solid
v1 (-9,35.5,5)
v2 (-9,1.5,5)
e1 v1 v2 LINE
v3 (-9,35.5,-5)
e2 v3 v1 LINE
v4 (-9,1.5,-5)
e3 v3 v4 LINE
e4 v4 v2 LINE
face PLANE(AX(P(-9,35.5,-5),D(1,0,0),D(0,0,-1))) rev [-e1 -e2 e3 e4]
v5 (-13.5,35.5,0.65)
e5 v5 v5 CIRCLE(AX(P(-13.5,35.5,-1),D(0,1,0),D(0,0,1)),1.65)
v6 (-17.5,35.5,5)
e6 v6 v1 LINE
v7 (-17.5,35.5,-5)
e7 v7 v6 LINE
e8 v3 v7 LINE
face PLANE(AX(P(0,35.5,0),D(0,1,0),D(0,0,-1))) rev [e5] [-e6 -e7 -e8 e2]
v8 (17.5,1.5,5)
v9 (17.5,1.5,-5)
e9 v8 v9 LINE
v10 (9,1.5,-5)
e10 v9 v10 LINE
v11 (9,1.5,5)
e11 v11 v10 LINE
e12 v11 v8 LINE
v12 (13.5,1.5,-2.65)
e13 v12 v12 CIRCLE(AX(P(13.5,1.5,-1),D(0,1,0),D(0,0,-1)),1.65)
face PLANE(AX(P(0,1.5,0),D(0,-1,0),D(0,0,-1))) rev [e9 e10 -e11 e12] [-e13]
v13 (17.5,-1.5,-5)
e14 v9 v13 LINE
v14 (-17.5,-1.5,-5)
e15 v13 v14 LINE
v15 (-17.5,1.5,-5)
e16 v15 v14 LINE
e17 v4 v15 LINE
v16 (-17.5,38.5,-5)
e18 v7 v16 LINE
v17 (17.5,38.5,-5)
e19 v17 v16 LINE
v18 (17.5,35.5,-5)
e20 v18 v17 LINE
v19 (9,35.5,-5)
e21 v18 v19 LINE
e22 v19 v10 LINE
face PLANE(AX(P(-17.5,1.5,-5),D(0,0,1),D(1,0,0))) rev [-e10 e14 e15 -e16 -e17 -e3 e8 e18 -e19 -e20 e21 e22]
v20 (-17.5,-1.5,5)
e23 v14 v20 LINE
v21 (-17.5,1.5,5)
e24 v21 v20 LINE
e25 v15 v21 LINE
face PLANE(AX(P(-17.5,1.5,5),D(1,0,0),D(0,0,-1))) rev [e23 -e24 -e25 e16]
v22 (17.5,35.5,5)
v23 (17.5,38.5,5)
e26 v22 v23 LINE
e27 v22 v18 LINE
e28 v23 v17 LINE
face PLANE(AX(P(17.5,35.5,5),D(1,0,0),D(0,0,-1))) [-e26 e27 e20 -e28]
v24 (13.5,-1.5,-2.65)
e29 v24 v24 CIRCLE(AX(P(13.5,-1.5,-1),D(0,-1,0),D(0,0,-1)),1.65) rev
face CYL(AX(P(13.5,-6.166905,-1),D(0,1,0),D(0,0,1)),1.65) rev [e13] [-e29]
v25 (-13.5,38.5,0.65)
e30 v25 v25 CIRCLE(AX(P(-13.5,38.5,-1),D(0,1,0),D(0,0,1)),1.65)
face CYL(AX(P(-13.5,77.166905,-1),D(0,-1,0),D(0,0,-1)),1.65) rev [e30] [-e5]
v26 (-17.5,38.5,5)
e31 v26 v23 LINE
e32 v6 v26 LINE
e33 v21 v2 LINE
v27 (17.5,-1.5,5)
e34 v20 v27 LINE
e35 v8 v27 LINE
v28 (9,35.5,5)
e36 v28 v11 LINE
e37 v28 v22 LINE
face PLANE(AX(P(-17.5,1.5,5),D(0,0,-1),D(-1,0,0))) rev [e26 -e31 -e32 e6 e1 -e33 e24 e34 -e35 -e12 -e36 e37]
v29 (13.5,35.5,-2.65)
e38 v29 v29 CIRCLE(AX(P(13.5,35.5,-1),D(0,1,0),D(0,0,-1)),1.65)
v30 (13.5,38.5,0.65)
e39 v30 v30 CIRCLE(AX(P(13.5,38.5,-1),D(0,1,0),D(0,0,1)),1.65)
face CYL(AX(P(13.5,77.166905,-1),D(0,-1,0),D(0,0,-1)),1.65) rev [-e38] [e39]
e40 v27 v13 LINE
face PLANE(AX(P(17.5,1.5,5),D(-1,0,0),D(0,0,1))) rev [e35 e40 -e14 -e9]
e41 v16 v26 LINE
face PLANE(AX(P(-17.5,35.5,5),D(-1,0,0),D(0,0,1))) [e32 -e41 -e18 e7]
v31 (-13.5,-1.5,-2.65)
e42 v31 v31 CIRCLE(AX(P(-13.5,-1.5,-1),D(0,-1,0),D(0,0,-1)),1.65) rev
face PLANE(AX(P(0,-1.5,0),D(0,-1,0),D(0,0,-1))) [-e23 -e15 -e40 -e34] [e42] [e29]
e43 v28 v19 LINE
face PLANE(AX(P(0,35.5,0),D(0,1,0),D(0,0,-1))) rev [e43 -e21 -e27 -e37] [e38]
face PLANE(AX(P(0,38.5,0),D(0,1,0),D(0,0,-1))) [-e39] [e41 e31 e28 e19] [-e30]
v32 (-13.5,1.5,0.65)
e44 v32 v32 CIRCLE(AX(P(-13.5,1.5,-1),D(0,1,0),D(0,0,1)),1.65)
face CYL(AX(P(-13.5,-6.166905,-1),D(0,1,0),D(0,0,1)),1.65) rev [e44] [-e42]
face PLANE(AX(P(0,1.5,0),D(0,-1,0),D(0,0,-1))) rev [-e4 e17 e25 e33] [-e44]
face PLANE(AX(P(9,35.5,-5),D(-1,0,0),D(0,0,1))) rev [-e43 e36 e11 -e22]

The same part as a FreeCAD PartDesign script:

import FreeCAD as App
import Part
import Sketcher
Q = App.Units.Quantity

doc = App.newDocument("Part")
body = doc.addObject("PartDesign::Body", "Body")

# Sketch on XZ plane
sketch1 = doc.addObject("Sketcher::SketchObject", "Sketch")
body.addObject(sketch1)
sketch1.AttachmentSupport = (doc.XZ_Plane, [""])
sketch1.MapMode = "FlatFace"
sketch1.addGeometry([
    Part.LineSegment(App.Vector(-18, -5, 0), App.Vector(-18, 5, 0)),
    Part.LineSegment(App.Vector(-18, 5, 0), App.Vector(18, 5, 0)),
    Part.LineSegment(App.Vector(18, 5, 0), App.Vector(18, -5, 0)),
    Part.LineSegment(App.Vector(18, -5, 0), App.Vector(-18, -5, 0)),
], False)
sketch1.addConstraint([
    Sketcher.Constraint("Coincident", 0, 2, 1, 1),
    Sketcher.Constraint("Coincident", 1, 2, 2, 1),
    Sketcher.Constraint("Coincident", 2, 2, 3, 1),
    Sketcher.Constraint("Coincident", 3, 2, 0, 1),
    Sketcher.Constraint("Vertical", 0),
    Sketcher.Constraint("Horizontal", 1),
    Sketcher.Constraint("Vertical", 2),
    Sketcher.Constraint("Horizontal", 3),
    Sketcher.Constraint("Symmetric", 0, 2, 2, 2, -1, 1),
    Sketcher.Constraint("DistanceX", 1, 1, 1, 2, Q("35 mm")),
    Sketcher.Constraint("DistanceY", 0, 1, 0, 2, Q("10 mm")),
])
pad1 = doc.addObject("PartDesign::Pad", "Pad")
body.addObject(pad1)
pad1.Profile = sketch1
pad1.Length = 3
pad1.Midplane = True

# Sketch on XZ plane
sketch2 = doc.addObject("Sketcher::SketchObject", "Sketch001")
body.addObject(sketch2)
sketch2.AttachmentSupport = (doc.XZ_Plane, [""])
sketch2.MapMode = "FlatFace"
sketch2.AttachmentOffset = App.Placement(App.Vector(0, 0, -1.5), App.Rotation())
sketch2.addGeometry([
    Part.Circle(App.Vector(-13.5, -1, 0), App.Vector(0, 0, 1), 1.6),
    Part.Circle(App.Vector(13.5, -1, 0), App.Vector(0, 0, 1), 1.6),
], False)
sketch2.addConstraint([
    Sketcher.Constraint("Equal", 0, 1),
    Sketcher.Constraint("Symmetric", 0, 3, 1, 3, -2),
    Sketcher.Constraint("Diameter", 0, Q("3.3 mm")),
    Sketcher.Constraint("DistanceY", 0, 3, -1, 1, Q("1 mm")),
    Sketcher.Constraint("DistanceX", 0, 3, 1, 3, Q("27 mm")),
])
pocket1 = doc.addObject("PartDesign::Pocket", "Pocket")
body.addObject(pocket1)
pocket1.Profile = sketch2
pocket1.Length = 3
pocket1.Reversed = True

# Sketch on XZ plane
sketch3 = doc.addObject("Sketcher::SketchObject", "Sketch002")
body.addObject(sketch3)
sketch3.AttachmentSupport = (doc.XZ_Plane, [""])
sketch3.MapMode = "FlatFace"
sketch3.AttachmentOffset = App.Placement(App.Vector(0, 0, -1.5), App.Rotation())
sketch3.addGeometry([
    Part.LineSegment(App.Vector(-9, -5, 0), App.Vector(-9, 5, 0)),
    Part.LineSegment(App.Vector(-9, 5, 0), App.Vector(9, 5, 0)),
    Part.LineSegment(App.Vector(9, 5, 0), App.Vector(9, -5, 0)),
    Part.LineSegment(App.Vector(9, -5, 0), App.Vector(-9, -5, 0)),
], False)
sketch3.addConstraint([
    Sketcher.Constraint("Coincident", 0, 2, 1, 1),
    Sketcher.Constraint("Coincident", 1, 2, 2, 1),
    Sketcher.Constraint("Coincident", 2, 2, 3, 1),
    Sketcher.Constraint("Coincident", 3, 2, 0, 1),
    Sketcher.Constraint("Vertical", 0),
    Sketcher.Constraint("Horizontal", 1),
    Sketcher.Constraint("Vertical", 2),
    Sketcher.Constraint("Horizontal", 3),
    Sketcher.Constraint("Symmetric", 0, 2, 2, 2, -1, 1),
    Sketcher.Constraint("DistanceX", 1, 1, 1, 2, Q("18 mm")),
    Sketcher.Constraint("DistanceY", 0, 1, 0, 2, Q("10 mm")),
])
pad2 = doc.addObject("PartDesign::Pad", "Pad001")
body.addObject(pad2)
pad2.Profile = sketch3
pad2.Length = 34
pad2.Reversed = True
doc.recompute()

datumplane = doc.addObject("PartDesign::Plane", "DatumPlane")
body.addObject(datumplane)
datumplane.AttachmentSupport = (doc.XZ_Plane, [""])
datumplane.MapMode = "FlatFace"
datumplane.AttachmentOffset = App.Placement(App.Vector(0, 0, -18.5), App.Rotation())
mirrored = doc.addObject("PartDesign::Mirrored", "Mirrored")
body.addObject(mirrored)
mirrored.Originals = [pad1, pocket1]
mirrored.MirrorPlane = (datumplane, [""])
body.Tip = mirrored

doc.recompute()
